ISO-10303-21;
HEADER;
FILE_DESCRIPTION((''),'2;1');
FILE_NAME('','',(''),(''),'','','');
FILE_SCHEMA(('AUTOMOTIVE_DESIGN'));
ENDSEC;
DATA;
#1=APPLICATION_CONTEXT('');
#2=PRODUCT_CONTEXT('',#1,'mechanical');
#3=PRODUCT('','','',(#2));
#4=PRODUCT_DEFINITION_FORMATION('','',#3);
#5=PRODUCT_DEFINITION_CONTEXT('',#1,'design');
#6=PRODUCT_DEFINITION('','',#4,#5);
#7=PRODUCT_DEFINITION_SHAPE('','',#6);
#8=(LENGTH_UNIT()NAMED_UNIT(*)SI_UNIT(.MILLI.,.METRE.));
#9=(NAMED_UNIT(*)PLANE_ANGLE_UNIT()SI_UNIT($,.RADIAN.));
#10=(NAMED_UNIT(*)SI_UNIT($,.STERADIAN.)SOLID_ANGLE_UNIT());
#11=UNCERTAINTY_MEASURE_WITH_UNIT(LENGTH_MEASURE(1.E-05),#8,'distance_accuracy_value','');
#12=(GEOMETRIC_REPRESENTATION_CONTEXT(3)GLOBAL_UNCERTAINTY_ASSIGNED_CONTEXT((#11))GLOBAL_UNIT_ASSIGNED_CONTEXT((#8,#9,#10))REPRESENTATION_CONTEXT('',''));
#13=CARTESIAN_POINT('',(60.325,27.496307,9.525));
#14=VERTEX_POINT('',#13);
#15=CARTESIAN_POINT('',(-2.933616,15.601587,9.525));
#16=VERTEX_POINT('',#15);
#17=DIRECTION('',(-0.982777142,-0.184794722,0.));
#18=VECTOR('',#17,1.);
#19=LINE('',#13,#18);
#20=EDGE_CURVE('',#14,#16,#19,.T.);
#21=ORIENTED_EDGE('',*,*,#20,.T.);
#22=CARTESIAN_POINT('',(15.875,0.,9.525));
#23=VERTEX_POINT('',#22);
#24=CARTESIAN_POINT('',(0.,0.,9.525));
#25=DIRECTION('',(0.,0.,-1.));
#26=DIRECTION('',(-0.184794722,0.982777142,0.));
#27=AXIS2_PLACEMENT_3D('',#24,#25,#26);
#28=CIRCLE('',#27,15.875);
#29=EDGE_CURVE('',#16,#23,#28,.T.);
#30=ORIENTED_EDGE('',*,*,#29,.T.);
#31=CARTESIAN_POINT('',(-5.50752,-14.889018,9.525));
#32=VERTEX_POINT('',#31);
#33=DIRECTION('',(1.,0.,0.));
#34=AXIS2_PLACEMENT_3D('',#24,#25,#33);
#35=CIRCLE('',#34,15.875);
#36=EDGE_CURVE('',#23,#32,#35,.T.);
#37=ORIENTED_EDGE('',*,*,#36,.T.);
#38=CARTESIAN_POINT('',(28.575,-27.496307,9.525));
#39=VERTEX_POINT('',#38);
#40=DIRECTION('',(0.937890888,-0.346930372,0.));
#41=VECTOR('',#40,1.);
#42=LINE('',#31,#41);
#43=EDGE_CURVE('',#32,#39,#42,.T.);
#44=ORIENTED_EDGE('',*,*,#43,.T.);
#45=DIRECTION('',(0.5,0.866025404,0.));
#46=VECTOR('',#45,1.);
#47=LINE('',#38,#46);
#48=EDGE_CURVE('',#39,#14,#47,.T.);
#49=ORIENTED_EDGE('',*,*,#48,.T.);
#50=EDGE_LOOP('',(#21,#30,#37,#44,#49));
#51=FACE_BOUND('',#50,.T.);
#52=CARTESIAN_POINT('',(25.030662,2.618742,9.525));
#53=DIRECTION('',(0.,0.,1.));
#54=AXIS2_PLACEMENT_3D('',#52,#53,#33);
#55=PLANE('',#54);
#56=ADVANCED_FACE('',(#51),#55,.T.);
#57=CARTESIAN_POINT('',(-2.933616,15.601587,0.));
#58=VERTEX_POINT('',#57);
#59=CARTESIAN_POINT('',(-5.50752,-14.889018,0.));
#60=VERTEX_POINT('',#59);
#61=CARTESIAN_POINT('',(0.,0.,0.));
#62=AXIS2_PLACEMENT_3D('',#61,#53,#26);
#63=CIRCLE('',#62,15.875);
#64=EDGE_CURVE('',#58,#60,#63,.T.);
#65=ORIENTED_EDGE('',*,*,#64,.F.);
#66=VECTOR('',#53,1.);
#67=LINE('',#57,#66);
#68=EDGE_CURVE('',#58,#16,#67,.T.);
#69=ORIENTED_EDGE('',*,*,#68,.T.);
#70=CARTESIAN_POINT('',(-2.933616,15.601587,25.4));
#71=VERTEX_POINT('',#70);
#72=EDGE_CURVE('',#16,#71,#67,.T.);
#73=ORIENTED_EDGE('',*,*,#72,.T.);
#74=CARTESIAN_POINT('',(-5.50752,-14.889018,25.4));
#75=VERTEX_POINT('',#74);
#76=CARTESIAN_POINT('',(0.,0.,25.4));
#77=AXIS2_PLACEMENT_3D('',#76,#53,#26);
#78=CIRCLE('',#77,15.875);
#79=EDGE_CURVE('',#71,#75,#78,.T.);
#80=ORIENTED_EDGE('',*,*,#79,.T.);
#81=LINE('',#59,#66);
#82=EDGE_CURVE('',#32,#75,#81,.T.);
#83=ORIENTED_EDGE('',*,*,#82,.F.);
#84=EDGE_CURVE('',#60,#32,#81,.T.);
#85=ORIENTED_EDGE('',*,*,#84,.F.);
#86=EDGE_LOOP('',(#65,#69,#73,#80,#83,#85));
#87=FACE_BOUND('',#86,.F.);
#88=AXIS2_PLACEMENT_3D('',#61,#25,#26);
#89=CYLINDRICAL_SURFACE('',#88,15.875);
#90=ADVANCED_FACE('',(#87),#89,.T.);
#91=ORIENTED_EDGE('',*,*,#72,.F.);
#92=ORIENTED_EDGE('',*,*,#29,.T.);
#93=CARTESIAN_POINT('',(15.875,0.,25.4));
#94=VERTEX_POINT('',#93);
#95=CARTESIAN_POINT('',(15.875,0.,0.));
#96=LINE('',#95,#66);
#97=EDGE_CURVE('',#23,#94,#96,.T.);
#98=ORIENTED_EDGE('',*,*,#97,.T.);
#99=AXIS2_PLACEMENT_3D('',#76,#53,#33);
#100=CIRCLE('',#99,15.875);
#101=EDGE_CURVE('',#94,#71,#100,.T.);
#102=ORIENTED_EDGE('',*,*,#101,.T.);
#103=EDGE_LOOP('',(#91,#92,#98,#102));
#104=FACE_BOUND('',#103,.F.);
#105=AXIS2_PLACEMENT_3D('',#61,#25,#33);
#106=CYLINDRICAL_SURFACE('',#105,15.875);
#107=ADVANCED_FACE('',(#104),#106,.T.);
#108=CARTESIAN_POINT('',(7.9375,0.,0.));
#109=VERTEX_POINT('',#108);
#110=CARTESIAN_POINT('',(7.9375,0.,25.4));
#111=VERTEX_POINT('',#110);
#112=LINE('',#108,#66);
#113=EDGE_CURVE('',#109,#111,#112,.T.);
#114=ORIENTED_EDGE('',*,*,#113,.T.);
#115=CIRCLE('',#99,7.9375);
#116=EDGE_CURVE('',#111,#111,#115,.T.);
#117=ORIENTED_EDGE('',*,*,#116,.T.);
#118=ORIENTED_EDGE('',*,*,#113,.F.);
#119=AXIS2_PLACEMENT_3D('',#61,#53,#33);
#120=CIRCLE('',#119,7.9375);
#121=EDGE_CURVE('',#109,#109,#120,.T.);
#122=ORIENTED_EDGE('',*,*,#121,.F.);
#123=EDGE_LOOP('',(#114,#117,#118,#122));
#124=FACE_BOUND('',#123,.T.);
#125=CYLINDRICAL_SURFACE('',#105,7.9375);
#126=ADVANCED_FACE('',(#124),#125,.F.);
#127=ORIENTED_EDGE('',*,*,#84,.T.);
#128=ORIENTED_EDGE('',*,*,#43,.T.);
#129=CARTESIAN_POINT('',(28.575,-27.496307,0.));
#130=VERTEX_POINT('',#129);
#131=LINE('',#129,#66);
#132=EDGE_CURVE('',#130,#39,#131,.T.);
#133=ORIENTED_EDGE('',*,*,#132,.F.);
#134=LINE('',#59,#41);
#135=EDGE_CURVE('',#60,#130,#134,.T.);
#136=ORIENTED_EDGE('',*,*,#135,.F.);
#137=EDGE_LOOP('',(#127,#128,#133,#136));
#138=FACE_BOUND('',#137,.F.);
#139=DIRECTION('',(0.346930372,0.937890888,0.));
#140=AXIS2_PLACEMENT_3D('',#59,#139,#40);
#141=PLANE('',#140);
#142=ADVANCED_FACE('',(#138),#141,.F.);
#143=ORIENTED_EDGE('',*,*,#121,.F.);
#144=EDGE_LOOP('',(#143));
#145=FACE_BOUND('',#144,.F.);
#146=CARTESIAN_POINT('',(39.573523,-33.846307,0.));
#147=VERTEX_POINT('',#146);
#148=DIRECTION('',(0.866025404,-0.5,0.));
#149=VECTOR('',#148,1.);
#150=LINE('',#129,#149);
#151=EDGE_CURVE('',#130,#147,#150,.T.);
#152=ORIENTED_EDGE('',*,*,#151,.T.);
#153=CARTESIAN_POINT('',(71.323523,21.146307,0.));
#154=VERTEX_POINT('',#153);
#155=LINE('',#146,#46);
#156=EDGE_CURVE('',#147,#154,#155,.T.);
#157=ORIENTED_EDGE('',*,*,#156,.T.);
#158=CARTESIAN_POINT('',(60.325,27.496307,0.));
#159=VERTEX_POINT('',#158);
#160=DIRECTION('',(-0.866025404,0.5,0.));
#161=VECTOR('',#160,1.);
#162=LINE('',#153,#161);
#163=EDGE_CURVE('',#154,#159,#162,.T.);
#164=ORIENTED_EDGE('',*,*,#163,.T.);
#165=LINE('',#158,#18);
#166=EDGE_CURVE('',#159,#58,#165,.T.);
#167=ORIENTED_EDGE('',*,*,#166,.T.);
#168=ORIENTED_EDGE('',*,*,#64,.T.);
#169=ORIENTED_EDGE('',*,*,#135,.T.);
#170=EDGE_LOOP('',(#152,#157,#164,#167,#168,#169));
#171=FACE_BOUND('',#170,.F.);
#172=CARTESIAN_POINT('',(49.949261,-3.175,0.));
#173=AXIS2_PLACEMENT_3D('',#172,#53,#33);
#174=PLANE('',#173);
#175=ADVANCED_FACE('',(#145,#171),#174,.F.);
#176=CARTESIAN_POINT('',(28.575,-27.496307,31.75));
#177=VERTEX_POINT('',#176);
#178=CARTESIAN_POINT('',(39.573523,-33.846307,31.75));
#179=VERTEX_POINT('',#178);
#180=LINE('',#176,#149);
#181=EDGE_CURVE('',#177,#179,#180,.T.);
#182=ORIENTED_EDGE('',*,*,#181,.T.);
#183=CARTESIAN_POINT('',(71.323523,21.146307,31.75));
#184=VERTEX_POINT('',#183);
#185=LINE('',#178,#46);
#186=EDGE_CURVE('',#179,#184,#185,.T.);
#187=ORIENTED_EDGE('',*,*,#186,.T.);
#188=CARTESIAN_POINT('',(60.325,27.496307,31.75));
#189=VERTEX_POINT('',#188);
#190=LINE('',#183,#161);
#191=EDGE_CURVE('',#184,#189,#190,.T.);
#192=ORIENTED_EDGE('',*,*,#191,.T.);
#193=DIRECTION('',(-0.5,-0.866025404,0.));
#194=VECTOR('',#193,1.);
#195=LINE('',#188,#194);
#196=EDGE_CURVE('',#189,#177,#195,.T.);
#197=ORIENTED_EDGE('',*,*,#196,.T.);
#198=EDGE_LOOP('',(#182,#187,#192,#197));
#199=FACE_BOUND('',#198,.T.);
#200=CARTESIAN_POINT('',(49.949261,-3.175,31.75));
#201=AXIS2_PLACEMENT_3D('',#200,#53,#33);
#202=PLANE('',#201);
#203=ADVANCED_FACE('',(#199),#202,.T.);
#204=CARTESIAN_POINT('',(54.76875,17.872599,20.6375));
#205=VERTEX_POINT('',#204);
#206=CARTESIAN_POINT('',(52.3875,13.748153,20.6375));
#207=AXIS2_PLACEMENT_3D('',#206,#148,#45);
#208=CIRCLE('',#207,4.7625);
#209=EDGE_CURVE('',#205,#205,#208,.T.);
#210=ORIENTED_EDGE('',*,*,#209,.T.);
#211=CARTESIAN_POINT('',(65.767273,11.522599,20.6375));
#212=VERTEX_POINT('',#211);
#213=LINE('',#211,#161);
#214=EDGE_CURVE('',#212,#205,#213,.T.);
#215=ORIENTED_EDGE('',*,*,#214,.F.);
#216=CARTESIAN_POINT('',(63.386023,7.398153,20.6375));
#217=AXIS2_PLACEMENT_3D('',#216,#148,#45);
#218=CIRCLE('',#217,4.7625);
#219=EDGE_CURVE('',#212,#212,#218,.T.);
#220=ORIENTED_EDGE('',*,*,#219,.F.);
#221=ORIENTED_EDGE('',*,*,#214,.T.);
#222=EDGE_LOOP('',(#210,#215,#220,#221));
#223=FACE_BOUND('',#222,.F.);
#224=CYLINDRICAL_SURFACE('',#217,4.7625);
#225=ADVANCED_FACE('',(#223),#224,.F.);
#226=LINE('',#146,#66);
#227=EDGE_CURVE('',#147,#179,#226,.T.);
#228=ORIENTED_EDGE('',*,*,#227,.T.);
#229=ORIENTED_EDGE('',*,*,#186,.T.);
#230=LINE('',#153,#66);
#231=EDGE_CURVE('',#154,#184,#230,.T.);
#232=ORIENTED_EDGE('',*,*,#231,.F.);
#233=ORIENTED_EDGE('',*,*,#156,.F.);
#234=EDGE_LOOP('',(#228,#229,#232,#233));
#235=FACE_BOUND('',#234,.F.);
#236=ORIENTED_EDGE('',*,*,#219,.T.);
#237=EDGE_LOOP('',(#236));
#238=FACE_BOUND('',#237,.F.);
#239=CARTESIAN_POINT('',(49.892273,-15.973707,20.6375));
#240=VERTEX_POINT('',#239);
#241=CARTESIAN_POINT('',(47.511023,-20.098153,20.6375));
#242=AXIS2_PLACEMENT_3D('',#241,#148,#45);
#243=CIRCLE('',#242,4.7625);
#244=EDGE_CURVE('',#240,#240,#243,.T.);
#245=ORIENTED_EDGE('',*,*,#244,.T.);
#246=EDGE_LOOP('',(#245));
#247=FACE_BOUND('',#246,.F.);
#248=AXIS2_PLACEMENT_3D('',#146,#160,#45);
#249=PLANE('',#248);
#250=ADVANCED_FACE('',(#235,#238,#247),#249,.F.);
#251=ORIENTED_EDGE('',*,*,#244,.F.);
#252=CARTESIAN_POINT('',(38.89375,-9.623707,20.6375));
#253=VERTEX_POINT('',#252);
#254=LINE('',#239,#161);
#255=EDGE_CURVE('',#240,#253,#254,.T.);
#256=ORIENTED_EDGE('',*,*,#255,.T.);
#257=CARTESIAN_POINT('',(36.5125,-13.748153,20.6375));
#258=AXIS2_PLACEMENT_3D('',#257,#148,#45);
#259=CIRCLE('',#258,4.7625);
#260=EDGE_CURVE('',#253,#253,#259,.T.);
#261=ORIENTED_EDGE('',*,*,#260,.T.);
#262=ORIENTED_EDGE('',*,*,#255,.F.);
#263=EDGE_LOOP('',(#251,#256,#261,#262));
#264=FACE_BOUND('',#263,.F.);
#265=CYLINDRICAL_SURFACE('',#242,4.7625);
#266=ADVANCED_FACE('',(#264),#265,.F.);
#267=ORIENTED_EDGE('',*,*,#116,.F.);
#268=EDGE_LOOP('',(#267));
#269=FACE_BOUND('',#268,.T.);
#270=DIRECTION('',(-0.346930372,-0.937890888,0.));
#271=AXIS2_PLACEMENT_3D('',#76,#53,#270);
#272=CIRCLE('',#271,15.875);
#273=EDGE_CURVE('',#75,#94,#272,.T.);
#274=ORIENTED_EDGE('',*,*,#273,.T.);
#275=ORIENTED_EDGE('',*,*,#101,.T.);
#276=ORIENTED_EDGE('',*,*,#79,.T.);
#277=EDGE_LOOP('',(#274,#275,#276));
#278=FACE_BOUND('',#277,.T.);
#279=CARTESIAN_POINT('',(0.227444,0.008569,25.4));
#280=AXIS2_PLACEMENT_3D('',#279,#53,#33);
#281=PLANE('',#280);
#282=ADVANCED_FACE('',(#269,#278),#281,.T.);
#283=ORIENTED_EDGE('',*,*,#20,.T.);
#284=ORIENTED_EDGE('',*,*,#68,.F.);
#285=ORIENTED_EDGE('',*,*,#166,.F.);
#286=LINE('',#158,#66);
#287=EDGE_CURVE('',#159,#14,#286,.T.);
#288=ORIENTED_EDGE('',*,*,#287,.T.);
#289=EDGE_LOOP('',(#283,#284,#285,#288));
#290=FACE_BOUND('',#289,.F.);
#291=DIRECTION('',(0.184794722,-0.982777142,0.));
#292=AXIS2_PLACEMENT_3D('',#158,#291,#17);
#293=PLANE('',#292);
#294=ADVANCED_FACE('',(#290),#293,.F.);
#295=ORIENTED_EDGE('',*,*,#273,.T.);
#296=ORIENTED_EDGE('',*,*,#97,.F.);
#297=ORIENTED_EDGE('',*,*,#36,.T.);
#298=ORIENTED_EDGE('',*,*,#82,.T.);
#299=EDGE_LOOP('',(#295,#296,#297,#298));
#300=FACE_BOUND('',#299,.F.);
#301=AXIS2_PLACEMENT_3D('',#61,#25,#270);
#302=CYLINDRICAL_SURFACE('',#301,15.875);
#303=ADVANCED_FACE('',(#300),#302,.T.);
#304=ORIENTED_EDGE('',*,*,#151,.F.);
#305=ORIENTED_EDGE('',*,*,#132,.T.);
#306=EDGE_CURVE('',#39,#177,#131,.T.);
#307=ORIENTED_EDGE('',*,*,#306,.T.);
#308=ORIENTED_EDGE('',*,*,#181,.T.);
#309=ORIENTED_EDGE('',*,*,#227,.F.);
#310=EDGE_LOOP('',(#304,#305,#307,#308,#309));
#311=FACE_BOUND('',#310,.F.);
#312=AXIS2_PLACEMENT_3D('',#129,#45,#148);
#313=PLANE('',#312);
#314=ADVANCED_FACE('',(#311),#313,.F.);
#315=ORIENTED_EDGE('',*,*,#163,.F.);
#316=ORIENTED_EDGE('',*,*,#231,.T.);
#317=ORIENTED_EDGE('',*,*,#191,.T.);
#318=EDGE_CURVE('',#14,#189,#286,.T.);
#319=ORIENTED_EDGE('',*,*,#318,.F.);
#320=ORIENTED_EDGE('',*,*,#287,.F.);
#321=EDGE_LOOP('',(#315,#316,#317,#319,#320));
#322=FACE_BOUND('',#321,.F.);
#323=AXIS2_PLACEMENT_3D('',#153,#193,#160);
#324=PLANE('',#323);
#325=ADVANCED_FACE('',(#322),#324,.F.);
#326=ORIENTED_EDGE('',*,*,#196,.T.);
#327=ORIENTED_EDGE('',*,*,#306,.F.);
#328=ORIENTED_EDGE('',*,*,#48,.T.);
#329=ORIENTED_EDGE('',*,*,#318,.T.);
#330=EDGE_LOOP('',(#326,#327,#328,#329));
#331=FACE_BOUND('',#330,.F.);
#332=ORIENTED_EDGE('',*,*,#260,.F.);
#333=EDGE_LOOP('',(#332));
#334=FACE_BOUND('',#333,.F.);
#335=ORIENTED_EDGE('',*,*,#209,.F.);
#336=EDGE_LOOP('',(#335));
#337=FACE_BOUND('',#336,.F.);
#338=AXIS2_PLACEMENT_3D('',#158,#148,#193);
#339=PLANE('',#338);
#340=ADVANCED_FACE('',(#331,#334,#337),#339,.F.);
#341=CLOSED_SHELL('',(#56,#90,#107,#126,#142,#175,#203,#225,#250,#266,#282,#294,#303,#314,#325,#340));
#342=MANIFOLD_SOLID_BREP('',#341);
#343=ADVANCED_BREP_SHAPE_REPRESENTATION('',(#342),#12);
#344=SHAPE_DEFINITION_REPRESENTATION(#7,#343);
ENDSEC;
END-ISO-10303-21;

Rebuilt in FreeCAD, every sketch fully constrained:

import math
import FreeCAD as App
import Part
import Sketcher
from FreeCAD import Vector
Q = App.Units.Quantity

doc = App.newDocument("Part")
params = doc.addObject("Spreadsheet::Sheet", "Params")
for row, (alias, value) in enumerate([
    ("sketch1_radius", "0.625 in"),
    ("sketch1_length", "2.5 in"),
    ("pad1_length", "0.375 in"),
    ("sketch2_diameter", "0.625 in"),
    ("sketch2_radius", "0.625 in"),
    ("pad2_length", "1 in"),
    ("sketch3_length", "0.5 in"),
    ("sketch3_length2", "2.5 in"),
    ("pad3_length", "1.25 in"),
    ("sketch4_diameter", "0.375 in"),
    ("pocket1_length", "0.5 in"),
], start=1):
    params.set(f"A{row}", alias)
    params.set(f"B{row}", "=" + value)
    params.setAlias(f"B{row}", alias)

body = doc.addObject("PartDesign::Body", "Body")

# Sketch on XY plane
sketch1 = body.newObject("Sketcher::SketchObject", "Sketch")
sketch1.AttachmentSupport = (doc.getObject("XY_Plane"), [""])
sketch1.MapMode = "FlatFace"
sketch1.addGeometry([
    Part.ArcOfCircle(Part.Circle(Vector(0, 0, 0), Vector(0, 0, 1), 15.875), math.radians(0), math.radians(100.649164)),  # 0
    Part.ArcOfCircle(Part.Circle(Vector(0, 0, 0), Vector(0, 0, 1), 15.875), math.radians(-110.299677), math.radians(0)),  # 1
    Part.LineSegment(Vector(-5.50752, -14.889018, 0), Vector(28.575, -27.496307, 0)),  # 2
    Part.LineSegment(Vector(28.575, -27.496307, 0), Vector(60.325, 27.496307, 0)),  # 3
    Part.LineSegment(Vector(60.325, 27.496307, 0), Vector(-2.933616, 15.601587, 0)),  # 4
], False)
sketch1.addConstraint([
    Sketcher.Constraint("Tangent", 0, 1, 1, 2),
    Sketcher.Constraint("Tangent", 1, 1, 2, 1),
    Sketcher.Constraint("Coincident", 2, 2, 3, 1),
    Sketcher.Constraint("Coincident", 3, 2, 4, 1),
    Sketcher.Constraint("Tangent", 4, 2, 0, 2),
    Sketcher.Constraint("Coincident", 0, 3, -1, 1),
    Sketcher.Constraint("Equal", 0, 1),
    Sketcher.Constraint("PointOnObject", 0, 1, -1),
    Sketcher.Constraint("Angle", 3, Q("60 deg")),
    Sketcher.Constraint("Radius", 0, Q("0.625 in")),
    Sketcher.Constraint("Distance", 3, Q("2.5 in")),
    Sketcher.Constraint("DistanceX", 0, 1, 2, 2, Q("0.5 in")),
    Sketcher.Constraint("DistanceX", 1, 1, -1, 1, Q("5.50752 mm")),
])
sketch1.setExpression("Constraints[9]", "Params.sketch1_radius")
sketch1.setExpression("Constraints[10]", "Params.sketch1_length")
pad1 = body.newObject("PartDesign::Pad", "Pad")
pad1.Profile = sketch1
pad1.setExpression("Length", "Params.pad1_length")

# Sketch on XY plane
sketch2 = body.newObject("Sketcher::SketchObject", "Sketch001")
sketch2.AttachmentSupport = (doc.getObject("XY_Plane"), [""])
sketch2.MapMode = "FlatFace"
sketch2.addGeometry([
    Part.ArcOfCircle(Part.Circle(Vector(0, 0, 0), Vector(0, 0, 1), 15.875), math.radians(-110.299677), math.radians(0)),
    Part.ArcOfCircle(Part.Circle(Vector(0, 0, 0), Vector(0, 0, 1), 15.875), math.radians(0), math.radians(100.649164)),
    Part.ArcOfCircle(Part.Circle(Vector(0, 0, 0), Vector(0, 0, 1), 15.875), math.radians(100.649164), math.radians(249.700323)),
    Part.Circle(Vector(0, 0, 0), Vector(0, 0, 1), 7.9375),
], False)
sketch2.addConstraint([
    Sketcher.Constraint("Tangent", 0, 2, 1, 1),
    Sketcher.Constraint("Tangent", 1, 2, 2, 1),
    Sketcher.Constraint("Tangent", 2, 2, 0, 1),
    Sketcher.Constraint("Coincident", 0, 3, -1, 1),
    Sketcher.Constraint("Coincident", 3, 3, -1, 1),
    Sketcher.Constraint("PointOnObject", 0, 2, -1),
    Sketcher.Constraint("Diameter", 3, Q("0.625 in")),
    Sketcher.Constraint("Radius", 0, Q("0.625 in")),
    Sketcher.Constraint("DistanceX", 2, 2, -1, 1, Q("5.50752 mm")),
    Sketcher.Constraint("DistanceX", 1, 2, -1, 1, Q("2.933616 mm")),
])
sketch2.setExpression("Constraints[6]", "Params.sketch2_diameter")
sketch2.setExpression("Constraints[7]", "Params.sketch2_radius")
pad2 = body.newObject("PartDesign::Pad", "Pad001")
pad2.Profile = sketch2
pad2.setExpression("Length", "Params.pad2_length")

# Sketch on XY plane
sketch3 = body.newObject("Sketcher::SketchObject", "Sketch002")
sketch3.AttachmentSupport = (doc.getObject("XY_Plane"), [""])
sketch3.MapMode = "FlatFace"
sketch3.addGeometry([
    Part.LineSegment(Vector(71.323523, 21.146307, 0), Vector(60.325, 27.496307, 0)),
    Part.LineSegment(Vector(60.325, 27.496307, 0), Vector(28.575, -27.496307, 0)),
    Part.LineSegment(Vector(28.575, -27.496307, 0), Vector(39.573523, -33.846307, 0)),
    Part.LineSegment(Vector(39.573523, -33.846307, 0), Vector(71.323523, 21.146307, 0)),
], False)
sketch3.addConstraint([
    Sketcher.Constraint("Coincident", 0, 2, 1, 1),
    Sketcher.Constraint("Coincident", 1, 2, 2, 1),
    Sketcher.Constraint("Coincident", 2, 2, 3, 1),
    Sketcher.Constraint("Coincident", 3, 2, 0, 1),
    Sketcher.Constraint("Perpendicular", 0, 1),
    Sketcher.Constraint("Perpendicular", 1, 2),
    Sketcher.Constraint("Perpendicular", 2, 3),
    Sketcher.Constraint("Angle", 0, Q("150 deg")),
    Sketcher.Constraint("Distance", 0, Q("0.5 in")),
    Sketcher.Constraint("Distance", 1, Q("2.5 in")),
    Sketcher.Constraint("DistanceX", -1, 1, 0, 2, Q("2.375 in")),
    Sketcher.Constraint("DistanceY", -1, 1, 0, 2, Q("27.496307 mm")),
])
sketch3.setExpression("Constraints[8]", "Params.sketch3_length")
sketch3.setExpression("Constraints[9]", "Params.sketch3_length2")
pad3 = body.newObject("PartDesign::Pad", "Pad002")
pad3.Profile = sketch3
pad3.setExpression("Length", "Params.pad3_length")

# Sketch on an angled plane
sketch4 = body.newObject("Sketcher::SketchObject", "Sketch003")
sketch4.Placement = App.Placement(Vector(44.336023, -25.597415, 0), App.Rotation(Vector(0.5, 0.866025404, 0), Vector(0, 0, 1), Vector(0.866025404, -0.5, 0), "ZXY"))
sketch4.addGeometry([
    Part.Circle(Vector(6.35, 20.6375, 0), Vector(0, 0, 1), 4.7625),
    Part.Circle(Vector(38.1, 20.6375, 0), Vector(0, 0, 1), 4.7625),
], False)
sketch4.addConstraint([
    Sketcher.Constraint("Equal", 0, 1),
    Sketcher.Constraint("Horizontal", 0, 3, 1, 3),
    Sketcher.Constraint("Diameter", 0, Q("0.375 in")),
    Sketcher.Constraint("DistanceX", -1, 1, 1, 3, Q("1.5 in")),
    Sketcher.Constraint("DistanceX", -1, 1, 0, 3, Q("0.25 in")),
    Sketcher.Constraint("DistanceY", -1, 1, 0, 3, Q("0.8125 in")),
])
sketch4.setExpression("Constraints[2]", "Params.sketch4_diameter")
pocket1 = body.newObject("PartDesign::Pocket", "Pocket")
pocket1.Profile = sketch4
pocket1.setExpression("Length", "Params.pocket1_length")

doc.recompute()
